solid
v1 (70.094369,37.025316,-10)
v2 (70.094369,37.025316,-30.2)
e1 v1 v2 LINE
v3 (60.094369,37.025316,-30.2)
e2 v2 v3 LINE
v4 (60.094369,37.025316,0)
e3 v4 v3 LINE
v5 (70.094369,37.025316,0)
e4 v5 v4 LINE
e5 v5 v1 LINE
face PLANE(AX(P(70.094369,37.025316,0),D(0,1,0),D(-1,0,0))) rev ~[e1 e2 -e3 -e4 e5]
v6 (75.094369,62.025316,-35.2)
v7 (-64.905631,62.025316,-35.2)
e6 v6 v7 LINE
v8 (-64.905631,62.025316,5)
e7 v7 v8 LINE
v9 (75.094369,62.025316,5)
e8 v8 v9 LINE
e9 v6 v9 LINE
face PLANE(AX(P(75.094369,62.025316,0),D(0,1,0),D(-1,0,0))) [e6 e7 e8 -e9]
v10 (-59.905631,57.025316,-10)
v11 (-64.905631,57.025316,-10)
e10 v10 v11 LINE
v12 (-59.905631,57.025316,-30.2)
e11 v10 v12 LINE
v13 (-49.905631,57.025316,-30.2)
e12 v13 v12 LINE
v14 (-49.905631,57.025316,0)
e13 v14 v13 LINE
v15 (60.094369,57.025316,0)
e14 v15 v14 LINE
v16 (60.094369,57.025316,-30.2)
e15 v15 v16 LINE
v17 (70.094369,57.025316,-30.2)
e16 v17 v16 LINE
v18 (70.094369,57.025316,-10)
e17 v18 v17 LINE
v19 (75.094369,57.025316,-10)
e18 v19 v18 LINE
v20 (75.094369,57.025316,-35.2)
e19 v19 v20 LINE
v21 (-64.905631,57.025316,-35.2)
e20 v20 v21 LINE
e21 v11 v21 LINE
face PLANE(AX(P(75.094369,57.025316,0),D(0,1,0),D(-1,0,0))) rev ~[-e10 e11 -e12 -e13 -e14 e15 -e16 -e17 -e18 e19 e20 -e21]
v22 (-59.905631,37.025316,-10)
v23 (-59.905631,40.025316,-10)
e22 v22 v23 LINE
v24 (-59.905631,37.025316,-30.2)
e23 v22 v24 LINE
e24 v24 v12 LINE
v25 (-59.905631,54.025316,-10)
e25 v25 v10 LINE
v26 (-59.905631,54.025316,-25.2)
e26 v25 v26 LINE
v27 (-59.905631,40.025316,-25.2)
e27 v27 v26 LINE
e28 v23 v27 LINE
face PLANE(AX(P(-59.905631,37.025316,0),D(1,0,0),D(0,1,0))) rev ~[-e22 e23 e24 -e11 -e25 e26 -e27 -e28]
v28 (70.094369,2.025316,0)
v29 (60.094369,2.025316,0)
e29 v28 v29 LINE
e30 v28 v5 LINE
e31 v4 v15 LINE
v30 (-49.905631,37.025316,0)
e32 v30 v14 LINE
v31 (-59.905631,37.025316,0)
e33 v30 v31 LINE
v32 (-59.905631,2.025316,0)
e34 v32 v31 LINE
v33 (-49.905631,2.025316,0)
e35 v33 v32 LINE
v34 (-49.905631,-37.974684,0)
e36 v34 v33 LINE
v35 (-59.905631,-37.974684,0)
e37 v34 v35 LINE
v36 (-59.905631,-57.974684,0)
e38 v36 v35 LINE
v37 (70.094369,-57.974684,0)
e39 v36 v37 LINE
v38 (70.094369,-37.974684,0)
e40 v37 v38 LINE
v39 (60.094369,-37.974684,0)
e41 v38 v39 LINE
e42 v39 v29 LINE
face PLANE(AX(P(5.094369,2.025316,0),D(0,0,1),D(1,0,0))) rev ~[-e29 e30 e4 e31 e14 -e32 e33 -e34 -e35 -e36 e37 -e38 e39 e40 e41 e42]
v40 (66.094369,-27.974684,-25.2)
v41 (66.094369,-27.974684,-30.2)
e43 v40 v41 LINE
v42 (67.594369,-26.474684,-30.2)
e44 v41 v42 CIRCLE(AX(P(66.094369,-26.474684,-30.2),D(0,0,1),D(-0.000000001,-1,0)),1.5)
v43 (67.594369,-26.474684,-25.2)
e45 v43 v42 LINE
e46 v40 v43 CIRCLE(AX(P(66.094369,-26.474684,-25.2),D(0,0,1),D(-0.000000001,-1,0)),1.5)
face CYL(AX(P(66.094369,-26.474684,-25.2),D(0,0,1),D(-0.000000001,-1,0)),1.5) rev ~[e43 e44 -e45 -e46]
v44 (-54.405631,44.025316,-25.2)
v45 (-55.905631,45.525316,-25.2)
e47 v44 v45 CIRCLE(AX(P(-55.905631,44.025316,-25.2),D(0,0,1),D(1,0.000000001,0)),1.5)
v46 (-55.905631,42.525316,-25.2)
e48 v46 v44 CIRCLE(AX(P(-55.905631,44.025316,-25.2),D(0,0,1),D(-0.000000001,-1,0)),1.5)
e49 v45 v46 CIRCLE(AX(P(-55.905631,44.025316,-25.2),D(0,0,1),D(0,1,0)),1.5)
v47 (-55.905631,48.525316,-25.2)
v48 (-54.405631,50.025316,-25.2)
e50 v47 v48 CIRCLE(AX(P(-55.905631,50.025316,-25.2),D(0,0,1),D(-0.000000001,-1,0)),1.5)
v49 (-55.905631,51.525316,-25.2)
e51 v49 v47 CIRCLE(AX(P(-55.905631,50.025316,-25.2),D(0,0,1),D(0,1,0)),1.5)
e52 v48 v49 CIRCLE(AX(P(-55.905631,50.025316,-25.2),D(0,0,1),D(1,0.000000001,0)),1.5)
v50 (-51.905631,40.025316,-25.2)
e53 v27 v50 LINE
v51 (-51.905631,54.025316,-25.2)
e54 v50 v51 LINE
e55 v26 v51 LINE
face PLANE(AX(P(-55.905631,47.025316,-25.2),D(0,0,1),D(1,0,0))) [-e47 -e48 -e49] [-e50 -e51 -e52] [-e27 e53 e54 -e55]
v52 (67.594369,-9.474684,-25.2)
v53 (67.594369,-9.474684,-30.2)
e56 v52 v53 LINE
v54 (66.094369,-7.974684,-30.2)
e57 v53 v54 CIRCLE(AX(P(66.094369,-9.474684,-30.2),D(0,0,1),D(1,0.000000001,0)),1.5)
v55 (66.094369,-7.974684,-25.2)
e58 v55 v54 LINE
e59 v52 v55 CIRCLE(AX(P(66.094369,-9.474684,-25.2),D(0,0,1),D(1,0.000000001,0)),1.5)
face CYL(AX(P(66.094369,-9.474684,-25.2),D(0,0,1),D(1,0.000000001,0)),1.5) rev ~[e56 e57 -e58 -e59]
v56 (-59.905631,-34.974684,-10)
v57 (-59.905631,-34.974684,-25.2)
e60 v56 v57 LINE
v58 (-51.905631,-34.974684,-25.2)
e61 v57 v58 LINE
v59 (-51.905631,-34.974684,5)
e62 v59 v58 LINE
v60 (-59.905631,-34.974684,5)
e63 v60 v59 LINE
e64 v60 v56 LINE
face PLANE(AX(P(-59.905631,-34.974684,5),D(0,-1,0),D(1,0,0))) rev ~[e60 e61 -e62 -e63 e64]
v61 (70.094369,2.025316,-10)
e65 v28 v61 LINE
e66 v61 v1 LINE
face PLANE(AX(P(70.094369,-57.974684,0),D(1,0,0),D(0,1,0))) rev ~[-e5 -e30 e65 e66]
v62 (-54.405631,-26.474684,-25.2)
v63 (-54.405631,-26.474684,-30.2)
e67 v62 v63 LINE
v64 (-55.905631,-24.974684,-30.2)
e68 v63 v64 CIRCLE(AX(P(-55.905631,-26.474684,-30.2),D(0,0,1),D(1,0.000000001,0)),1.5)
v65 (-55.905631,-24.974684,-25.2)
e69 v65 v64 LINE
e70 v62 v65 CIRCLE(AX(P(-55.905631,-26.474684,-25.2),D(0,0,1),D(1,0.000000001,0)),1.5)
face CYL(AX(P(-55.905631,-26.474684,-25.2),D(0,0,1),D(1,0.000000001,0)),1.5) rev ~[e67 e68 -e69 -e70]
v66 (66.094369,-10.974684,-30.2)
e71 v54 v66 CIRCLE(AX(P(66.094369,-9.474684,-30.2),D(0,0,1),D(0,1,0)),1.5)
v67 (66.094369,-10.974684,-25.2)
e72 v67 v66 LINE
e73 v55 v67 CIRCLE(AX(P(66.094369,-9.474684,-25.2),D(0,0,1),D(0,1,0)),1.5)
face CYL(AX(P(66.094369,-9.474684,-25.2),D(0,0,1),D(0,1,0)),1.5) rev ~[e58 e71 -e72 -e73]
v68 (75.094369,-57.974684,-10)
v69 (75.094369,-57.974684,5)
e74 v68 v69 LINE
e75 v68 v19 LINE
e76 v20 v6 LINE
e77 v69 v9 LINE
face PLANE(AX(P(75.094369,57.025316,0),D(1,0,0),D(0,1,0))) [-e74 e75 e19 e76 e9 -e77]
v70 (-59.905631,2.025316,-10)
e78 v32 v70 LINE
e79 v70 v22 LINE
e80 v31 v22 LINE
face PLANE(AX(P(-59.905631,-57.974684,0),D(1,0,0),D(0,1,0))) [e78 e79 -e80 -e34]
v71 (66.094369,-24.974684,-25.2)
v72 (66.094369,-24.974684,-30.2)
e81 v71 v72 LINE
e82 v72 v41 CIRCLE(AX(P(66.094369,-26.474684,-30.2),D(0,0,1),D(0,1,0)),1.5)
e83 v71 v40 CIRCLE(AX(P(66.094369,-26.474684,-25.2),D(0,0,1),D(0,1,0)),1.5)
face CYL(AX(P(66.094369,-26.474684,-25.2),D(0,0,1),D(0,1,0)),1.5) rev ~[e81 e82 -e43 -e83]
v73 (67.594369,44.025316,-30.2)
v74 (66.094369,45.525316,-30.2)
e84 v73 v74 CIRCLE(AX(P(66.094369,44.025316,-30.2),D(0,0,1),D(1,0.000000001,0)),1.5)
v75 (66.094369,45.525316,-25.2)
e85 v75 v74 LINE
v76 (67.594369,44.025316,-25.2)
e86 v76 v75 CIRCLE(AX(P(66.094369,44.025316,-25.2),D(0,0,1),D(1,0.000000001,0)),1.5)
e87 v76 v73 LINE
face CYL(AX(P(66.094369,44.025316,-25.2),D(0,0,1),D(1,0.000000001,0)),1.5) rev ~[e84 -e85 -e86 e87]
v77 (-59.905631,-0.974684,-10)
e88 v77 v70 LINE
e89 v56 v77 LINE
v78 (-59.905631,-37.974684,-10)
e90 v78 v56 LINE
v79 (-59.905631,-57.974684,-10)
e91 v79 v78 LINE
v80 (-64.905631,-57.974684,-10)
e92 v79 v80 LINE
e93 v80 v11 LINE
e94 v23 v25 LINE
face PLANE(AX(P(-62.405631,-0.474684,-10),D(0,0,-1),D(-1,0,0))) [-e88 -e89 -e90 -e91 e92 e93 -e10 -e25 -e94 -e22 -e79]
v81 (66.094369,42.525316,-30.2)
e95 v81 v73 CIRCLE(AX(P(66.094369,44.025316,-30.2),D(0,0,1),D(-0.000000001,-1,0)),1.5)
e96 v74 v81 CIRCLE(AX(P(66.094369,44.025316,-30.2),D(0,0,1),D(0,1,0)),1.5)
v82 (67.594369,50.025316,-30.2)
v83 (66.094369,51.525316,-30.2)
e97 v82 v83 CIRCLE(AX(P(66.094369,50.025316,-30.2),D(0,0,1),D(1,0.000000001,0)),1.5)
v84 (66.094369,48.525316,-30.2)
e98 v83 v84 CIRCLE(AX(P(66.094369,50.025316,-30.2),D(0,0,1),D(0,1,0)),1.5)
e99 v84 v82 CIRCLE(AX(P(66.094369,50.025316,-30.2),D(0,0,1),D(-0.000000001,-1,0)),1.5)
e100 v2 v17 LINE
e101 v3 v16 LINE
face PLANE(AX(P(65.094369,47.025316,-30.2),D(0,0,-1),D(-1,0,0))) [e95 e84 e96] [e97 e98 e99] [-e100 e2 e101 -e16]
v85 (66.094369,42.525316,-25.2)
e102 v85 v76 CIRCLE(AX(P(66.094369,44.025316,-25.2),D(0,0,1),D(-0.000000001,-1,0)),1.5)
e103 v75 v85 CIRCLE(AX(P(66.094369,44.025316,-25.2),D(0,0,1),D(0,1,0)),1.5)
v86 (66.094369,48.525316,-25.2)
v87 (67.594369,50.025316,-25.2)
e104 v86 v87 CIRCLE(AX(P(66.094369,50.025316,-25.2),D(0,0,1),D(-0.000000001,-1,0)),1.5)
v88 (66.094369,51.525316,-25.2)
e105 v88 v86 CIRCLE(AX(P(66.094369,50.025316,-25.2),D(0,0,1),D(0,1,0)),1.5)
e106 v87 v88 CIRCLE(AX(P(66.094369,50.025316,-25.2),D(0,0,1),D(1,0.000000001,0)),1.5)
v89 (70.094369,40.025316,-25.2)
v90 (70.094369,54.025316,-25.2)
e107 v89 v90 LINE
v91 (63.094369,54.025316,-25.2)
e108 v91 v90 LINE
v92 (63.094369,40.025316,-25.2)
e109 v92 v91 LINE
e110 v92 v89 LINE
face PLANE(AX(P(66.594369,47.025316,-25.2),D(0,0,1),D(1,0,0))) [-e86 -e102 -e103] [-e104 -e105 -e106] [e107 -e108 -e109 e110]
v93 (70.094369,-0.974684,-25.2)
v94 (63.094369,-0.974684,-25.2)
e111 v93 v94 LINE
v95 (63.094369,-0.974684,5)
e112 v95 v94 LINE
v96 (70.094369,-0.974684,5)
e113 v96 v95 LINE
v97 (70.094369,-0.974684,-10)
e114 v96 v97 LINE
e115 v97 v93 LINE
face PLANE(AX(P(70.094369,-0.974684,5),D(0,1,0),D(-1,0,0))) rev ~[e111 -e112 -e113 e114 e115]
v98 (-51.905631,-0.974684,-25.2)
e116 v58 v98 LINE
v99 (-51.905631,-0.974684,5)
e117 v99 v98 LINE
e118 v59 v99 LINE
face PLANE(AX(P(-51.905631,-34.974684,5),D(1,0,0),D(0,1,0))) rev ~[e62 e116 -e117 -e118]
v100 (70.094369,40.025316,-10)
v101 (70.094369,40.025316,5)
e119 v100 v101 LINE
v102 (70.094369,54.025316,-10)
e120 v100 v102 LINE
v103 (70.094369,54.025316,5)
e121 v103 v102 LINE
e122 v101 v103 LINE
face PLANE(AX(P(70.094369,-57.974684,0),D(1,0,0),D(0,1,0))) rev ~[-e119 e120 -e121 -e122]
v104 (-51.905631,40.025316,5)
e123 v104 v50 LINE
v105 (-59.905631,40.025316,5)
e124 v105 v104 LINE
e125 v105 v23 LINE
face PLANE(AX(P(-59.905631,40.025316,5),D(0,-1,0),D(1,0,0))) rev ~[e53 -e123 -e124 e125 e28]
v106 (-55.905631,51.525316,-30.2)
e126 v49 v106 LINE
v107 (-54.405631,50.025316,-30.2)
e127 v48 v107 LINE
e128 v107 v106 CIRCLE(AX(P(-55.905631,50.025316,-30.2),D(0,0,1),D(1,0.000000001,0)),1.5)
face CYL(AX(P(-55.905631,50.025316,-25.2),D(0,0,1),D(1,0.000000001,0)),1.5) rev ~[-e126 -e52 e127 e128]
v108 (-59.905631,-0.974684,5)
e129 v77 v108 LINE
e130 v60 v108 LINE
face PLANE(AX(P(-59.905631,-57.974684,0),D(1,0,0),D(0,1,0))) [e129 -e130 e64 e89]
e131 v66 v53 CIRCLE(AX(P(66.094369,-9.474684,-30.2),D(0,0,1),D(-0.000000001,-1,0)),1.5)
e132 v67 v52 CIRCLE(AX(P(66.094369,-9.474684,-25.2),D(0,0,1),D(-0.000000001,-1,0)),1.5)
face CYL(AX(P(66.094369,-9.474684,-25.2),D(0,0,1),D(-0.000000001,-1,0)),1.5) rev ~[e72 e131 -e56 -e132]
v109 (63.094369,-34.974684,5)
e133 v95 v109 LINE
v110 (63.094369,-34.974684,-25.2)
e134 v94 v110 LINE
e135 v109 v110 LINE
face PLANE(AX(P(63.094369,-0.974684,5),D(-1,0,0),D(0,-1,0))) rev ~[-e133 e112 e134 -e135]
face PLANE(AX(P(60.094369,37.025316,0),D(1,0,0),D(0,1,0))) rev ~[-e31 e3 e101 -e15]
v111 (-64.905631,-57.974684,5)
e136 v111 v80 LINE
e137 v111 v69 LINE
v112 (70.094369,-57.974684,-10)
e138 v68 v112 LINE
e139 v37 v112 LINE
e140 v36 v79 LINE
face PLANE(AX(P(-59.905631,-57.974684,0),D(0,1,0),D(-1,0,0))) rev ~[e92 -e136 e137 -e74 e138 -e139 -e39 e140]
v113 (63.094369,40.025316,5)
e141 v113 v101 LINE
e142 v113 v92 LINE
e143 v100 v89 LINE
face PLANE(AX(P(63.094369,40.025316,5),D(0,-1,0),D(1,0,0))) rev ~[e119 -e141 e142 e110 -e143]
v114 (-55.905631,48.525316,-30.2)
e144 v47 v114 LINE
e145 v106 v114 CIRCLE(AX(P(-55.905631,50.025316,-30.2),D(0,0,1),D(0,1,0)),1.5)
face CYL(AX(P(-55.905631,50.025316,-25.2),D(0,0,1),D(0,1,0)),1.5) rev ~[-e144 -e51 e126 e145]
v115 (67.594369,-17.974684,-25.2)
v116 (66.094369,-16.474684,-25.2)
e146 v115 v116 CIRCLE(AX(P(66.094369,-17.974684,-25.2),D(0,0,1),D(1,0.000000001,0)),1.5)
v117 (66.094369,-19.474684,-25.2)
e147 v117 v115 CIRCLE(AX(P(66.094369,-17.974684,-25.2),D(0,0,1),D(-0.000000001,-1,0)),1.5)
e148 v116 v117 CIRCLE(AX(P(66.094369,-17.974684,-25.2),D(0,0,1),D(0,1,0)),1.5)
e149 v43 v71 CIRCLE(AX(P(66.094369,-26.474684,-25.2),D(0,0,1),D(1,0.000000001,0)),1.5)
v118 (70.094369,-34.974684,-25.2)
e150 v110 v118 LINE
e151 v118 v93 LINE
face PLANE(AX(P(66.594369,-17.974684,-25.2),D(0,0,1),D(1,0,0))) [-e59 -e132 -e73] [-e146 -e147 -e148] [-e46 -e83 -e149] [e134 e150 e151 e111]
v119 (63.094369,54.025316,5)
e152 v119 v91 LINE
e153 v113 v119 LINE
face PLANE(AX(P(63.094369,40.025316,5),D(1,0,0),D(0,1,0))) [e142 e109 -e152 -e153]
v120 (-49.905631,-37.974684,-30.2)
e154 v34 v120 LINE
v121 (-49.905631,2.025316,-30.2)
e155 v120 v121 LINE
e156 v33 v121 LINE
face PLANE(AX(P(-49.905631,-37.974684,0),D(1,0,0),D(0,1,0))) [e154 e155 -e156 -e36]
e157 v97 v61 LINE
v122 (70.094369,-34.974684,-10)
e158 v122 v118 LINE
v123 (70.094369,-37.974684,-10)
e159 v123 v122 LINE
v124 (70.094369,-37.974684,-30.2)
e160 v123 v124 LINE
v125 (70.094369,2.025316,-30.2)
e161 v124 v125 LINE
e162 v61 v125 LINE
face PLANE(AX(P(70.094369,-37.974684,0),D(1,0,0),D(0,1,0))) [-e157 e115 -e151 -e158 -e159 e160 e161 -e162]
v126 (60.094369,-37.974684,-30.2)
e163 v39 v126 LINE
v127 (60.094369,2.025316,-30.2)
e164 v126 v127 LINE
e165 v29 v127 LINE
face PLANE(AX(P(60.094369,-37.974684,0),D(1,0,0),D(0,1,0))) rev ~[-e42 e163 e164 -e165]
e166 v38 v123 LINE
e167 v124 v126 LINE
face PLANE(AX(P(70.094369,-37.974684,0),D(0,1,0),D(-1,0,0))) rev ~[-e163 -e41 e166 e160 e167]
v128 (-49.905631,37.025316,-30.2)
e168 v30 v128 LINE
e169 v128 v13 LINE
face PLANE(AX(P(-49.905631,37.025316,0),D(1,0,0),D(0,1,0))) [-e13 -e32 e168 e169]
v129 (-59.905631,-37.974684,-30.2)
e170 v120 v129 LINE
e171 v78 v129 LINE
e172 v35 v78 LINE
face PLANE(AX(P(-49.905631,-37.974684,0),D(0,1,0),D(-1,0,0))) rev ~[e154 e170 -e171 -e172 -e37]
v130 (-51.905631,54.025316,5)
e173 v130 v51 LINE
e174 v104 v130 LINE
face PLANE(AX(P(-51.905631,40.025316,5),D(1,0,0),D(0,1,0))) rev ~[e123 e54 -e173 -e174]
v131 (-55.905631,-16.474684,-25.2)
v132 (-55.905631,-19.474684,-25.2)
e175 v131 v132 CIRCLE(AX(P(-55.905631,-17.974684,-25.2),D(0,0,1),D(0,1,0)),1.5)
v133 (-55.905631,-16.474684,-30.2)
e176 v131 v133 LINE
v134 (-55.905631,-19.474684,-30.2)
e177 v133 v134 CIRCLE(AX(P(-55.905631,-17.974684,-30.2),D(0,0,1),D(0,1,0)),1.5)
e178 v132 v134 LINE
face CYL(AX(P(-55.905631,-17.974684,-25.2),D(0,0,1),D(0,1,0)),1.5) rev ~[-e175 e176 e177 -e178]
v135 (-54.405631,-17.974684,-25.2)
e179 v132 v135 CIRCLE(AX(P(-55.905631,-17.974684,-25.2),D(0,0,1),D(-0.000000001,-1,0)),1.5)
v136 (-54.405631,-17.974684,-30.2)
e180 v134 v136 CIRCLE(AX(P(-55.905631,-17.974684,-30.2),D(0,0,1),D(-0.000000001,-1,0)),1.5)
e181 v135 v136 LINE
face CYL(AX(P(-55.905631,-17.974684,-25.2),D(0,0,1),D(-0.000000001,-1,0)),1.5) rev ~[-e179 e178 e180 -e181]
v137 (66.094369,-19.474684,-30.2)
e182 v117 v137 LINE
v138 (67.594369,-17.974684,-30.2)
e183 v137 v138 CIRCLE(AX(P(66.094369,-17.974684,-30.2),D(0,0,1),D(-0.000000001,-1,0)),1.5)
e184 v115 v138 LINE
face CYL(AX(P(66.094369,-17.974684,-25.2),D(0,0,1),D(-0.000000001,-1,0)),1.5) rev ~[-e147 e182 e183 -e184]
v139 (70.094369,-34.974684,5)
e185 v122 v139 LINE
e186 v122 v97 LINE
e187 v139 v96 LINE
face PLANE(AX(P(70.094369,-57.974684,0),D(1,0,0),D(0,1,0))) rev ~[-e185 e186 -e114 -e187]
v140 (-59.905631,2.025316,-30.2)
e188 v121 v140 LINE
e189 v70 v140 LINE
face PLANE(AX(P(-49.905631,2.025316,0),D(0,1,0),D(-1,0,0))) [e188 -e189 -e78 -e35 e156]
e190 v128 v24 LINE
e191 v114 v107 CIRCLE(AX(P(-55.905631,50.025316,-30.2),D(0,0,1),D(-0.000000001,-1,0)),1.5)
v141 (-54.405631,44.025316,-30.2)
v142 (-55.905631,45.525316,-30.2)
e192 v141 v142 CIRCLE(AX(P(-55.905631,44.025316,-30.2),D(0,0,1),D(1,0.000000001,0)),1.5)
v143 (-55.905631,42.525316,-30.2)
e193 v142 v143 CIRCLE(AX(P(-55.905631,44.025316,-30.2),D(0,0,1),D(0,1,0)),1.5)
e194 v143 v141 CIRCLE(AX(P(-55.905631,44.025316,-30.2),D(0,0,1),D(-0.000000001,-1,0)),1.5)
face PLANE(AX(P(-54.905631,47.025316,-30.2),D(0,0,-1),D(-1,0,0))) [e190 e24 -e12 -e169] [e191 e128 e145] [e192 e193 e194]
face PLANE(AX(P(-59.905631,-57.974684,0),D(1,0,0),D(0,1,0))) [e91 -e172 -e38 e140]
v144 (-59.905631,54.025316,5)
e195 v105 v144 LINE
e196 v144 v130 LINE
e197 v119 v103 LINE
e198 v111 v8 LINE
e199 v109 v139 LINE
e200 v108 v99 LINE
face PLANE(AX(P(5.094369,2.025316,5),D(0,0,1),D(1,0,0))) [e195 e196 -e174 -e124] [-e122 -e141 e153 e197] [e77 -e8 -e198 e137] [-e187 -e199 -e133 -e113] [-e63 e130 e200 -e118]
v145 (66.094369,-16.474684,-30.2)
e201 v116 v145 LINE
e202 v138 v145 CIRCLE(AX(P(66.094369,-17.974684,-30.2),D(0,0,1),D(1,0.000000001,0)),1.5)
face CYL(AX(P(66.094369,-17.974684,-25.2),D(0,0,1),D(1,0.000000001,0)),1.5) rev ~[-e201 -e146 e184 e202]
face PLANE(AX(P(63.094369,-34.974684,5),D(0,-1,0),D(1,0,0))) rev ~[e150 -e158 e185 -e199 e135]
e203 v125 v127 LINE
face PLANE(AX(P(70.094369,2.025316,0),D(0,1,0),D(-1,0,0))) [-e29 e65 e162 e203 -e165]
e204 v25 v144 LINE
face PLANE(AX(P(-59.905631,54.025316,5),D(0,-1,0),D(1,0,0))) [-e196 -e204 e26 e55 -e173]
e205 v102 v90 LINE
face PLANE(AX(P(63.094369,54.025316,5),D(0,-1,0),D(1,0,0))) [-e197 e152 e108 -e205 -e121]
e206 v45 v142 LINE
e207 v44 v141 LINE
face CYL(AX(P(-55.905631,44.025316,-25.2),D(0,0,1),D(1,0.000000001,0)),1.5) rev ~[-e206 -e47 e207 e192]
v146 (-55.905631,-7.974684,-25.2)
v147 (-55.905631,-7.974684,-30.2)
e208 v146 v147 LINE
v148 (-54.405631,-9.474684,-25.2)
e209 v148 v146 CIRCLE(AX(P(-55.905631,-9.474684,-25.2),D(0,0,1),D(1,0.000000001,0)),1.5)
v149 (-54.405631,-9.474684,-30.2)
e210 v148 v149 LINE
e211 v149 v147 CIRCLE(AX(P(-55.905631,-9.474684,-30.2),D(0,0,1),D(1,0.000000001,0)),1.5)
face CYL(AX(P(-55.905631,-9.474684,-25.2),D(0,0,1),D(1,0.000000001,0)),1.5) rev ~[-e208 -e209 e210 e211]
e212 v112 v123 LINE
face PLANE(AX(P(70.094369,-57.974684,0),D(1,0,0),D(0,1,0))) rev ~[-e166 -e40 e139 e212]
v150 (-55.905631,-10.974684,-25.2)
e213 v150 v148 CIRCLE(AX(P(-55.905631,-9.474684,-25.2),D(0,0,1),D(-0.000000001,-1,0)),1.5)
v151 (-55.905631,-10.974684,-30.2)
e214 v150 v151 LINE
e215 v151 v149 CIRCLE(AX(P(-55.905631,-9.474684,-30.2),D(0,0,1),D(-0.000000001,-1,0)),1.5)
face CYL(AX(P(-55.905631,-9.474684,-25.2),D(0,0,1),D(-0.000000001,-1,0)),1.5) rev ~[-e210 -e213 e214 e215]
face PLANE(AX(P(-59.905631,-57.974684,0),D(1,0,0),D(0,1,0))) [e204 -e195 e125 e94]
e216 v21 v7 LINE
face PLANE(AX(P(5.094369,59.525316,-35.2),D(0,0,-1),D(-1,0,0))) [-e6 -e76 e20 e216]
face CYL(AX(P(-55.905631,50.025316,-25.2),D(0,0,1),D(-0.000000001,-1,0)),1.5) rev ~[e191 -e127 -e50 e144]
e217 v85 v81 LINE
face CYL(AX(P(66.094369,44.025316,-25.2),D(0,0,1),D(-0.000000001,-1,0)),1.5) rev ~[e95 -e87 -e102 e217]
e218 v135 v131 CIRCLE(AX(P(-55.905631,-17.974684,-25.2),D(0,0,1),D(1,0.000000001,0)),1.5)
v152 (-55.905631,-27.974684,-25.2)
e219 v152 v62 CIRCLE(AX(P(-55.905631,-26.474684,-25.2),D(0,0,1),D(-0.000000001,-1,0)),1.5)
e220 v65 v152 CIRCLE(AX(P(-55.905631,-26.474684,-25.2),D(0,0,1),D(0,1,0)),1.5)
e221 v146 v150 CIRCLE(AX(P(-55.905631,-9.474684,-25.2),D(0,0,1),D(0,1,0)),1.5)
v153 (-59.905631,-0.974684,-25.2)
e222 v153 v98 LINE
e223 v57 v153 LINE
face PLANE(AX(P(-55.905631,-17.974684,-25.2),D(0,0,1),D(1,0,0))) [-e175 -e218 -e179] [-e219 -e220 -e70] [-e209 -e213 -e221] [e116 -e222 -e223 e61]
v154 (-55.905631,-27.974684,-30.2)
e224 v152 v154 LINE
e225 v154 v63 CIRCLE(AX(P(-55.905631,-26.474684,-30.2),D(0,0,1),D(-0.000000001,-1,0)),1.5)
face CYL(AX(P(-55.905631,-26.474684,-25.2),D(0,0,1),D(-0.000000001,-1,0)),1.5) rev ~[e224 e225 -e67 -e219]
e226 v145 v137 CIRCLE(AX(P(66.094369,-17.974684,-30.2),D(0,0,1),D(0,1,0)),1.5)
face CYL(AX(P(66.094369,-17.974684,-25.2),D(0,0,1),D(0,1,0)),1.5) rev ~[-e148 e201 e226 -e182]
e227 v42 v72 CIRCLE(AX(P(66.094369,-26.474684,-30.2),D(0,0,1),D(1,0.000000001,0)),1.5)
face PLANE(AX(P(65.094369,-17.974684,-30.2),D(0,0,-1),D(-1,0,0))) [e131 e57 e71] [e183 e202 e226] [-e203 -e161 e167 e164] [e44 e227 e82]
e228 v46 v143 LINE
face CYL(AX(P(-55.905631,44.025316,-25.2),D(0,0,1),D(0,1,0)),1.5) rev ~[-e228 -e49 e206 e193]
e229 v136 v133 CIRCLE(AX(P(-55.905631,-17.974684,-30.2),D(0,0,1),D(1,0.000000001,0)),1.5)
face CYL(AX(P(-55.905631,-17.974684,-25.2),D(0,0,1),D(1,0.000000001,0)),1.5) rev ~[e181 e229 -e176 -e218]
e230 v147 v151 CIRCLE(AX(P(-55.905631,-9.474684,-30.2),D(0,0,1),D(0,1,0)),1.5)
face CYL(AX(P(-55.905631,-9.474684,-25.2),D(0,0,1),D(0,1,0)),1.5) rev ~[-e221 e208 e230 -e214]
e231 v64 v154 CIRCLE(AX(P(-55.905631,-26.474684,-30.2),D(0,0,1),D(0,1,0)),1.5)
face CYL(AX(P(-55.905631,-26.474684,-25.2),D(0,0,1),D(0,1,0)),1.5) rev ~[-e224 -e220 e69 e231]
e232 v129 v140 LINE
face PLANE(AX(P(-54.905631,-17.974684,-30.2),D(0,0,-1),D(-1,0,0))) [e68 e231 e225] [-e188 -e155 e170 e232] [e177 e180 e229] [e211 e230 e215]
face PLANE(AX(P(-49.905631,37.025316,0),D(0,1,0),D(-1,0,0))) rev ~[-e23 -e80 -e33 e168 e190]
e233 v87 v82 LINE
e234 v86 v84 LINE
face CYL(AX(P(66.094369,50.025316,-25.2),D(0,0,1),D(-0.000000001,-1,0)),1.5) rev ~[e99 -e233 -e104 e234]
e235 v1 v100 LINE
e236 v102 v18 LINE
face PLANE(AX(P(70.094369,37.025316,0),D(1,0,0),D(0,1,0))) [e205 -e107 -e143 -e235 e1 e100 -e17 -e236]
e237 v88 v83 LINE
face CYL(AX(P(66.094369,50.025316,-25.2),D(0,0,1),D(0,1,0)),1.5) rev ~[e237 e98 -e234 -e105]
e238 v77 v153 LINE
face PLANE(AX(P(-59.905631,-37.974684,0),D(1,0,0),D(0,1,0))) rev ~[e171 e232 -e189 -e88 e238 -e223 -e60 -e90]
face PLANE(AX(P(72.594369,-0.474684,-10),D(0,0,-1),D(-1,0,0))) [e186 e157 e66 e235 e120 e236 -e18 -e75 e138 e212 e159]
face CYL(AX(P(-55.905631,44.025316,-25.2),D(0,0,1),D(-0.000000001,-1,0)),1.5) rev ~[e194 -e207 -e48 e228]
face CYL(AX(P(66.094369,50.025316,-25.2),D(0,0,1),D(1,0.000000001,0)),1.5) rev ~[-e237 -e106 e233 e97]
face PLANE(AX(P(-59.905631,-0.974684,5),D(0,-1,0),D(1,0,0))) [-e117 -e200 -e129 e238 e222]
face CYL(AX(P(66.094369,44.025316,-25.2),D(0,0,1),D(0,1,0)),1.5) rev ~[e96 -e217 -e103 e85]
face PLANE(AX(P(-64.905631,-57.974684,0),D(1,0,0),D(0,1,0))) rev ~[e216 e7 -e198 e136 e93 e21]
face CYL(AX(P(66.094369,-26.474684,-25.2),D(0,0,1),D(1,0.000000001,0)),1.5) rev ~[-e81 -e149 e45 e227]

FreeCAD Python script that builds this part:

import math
import FreeCAD as App
import Part
import Sketcher

V = App.Vector
Q = App.Units.Quantity

doc = App.newDocument("Part")
body = doc.addObject("PartDesign::Body", "Body")

# Sketch on XY plane
sketch1 = doc.addObject("Sketcher::SketchObject", "Sketch")
body.addObject(sketch1)
sketch1.AttachmentSupport = (doc.XY_Plane, [""])
sketch1.MapMode = "FlatFace"
sketch1.addGeometry(Part.LineSegment(V(-64.905631, 62.025316, 0), V(-64.905631, -57.974684, 0)), False)
sketch1.addGeometry(Part.LineSegment(V(-64.905631, -57.974684, 0), V(75.094369, -57.974684, 0)), False)
sketch1.addGeometry(Part.LineSegment(V(75.094369, -57.974684, 0), V(75.094369, 62.025316, 0)), False)
sketch1.addGeometry(Part.LineSegment(V(75.094369, 62.025316, 0), V(-64.905631, 62.025316, 0)), False)
sketch1.addConstraint(Sketcher.Constraint("Coincident", 0, 2, 1, 1))
sketch1.addConstraint(Sketcher.Constraint("Coincident", 1, 2, 2, 1))
sketch1.addConstraint(Sketcher.Constraint("Coincident", 2, 2, 3, 1))
sketch1.addConstraint(Sketcher.Constraint("Coincident", 3, 2, 0, 1))
sketch1.addConstraint(Sketcher.Constraint("Vertical", 0))
sketch1.addConstraint(Sketcher.Constraint("Horizontal", 1))
sketch1.addConstraint(Sketcher.Constraint("Vertical", 2))
sketch1.addConstraint(Sketcher.Constraint("Horizontal", 3))
sketch1.addConstraint(Sketcher.Constraint("DistanceX", 1, 1, 1, 2, Q("140 mm")))
sketch1.addConstraint(Sketcher.Constraint("DistanceY", 0, 2, 0, 1, Q("120 mm")))
sketch1.addConstraint(Sketcher.Constraint("DistanceX", 0, 2, -1, 1, Q("64.905631 mm")))
sketch1.addConstraint(Sketcher.Constraint("DistanceY", 0, 2, -1, 1, Q("57.974684 mm")))
pad1 = doc.addObject("PartDesign::Pad", "Pad")
body.addObject(pad1)
pad1.Profile = sketch1
pad1.Length = 5

# Sketch on XY plane
sketch2 = doc.addObject("Sketcher::SketchObject", "Sketch001")
body.addObject(sketch2)
sketch2.AttachmentSupport = (doc.XY_Plane, [""])
sketch2.MapMode = "FlatFace"
sketch2.addGeometry(Part.LineSegment(V(75.094369, 62.025316, 0), V(75.094369, 57.025316, 0)), False)
sketch2.addGeometry(Part.LineSegment(V(75.094369, 57.025316, 0), V(-64.905631, 57.025316, 0)), False)
sketch2.addGeometry(Part.LineSegment(V(-64.905631, 57.025316, 0), V(-64.905631, 62.025316, 0)), False)
sketch2.addGeometry(Part.LineSegment(V(-64.905631, 62.025316, 0), V(75.094369, 62.025316, 0)), False)
sketch2.addConstraint(Sketcher.Constraint("Coincident", 0, 2, 1, 1))
sketch2.addConstraint(Sketcher.Constraint("Coincident", 1, 2, 2, 1))
sketch2.addConstraint(Sketcher.Constraint("Coincident", 2, 2, 3, 1))
sketch2.addConstraint(Sketcher.Constraint("Coincident", 3, 2, 0, 1))
sketch2.addConstraint(Sketcher.Constraint("Vertical", 0))
sketch2.addConstraint(Sketcher.Constraint("Horizontal", 1))
sketch2.addConstraint(Sketcher.Constraint("Vertical", 2))
sketch2.addConstraint(Sketcher.Constraint("Horizontal", 3))
sketch2.addConstraint(Sketcher.Constraint("DistanceX", 1, 2, 1, 1, Q("140 mm")))
sketch2.addConstraint(Sketcher.Constraint("DistanceY", 0, 2, 0, 1, Q("5 mm")))
sketch2.addConstraint(Sketcher.Constraint("DistanceX", -1, 1, 0, 2, Q("75.094369 mm")))
sketch2.addConstraint(Sketcher.Constraint("DistanceY", -1, 1, 0, 2, Q("57.025316 mm")))
pad2 = doc.addObject("PartDesign::Pad", "Pad001")
body.addObject(pad2)
pad2.Profile = sketch2
pad2.Length = 35.2
pad2.Reversed = True

# Sketch on XY plane
sketch3 = doc.addObject("Sketcher::SketchObject", "Sketch002")
body.addObject(sketch3)
sketch3.AttachmentSupport = (doc.XY_Plane, [""])
sketch3.MapMode = "FlatFace"
sketch3.addGeometry(Part.LineSegment(V(70.094369, 2.025316, 0), V(70.094369, -37.974684, 0)), False)
sketch3.addGeometry(Part.LineSegment(V(70.094369, -37.974684, 0), V(60.094369, -37.974684, 0)), False)
sketch3.addGeometry(Part.LineSegment(V(60.094369, -37.974684, 0), V(60.094369, 2.025316, 0)), False)
sketch3.addGeometry(Part.LineSegment(V(60.094369, 2.025316, 0), V(70.094369, 2.025316, 0)), False)
sketch3.addGeometry(Part.LineSegment(V(70.094369, 57.025316, 0), V(70.094369, 37.025316, 0)), False)
sketch3.addGeometry(Part.LineSegment(V(70.094369, 37.025316, 0), V(60.094369, 37.025316, 0)), False)
sketch3.addGeometry(Part.LineSegment(V(60.094369, 37.025316, 0), V(60.094369, 57.025316, 0)), False)
sketch3.addGeometry(Part.LineSegment(V(60.094369, 57.025316, 0), V(70.094369, 57.025316, 0)), False)
sketch3.addGeometry(Part.LineSegment(V(-49.905631, 2.025316, 0), V(-49.905631, -37.974684, 0)), False)
sketch3.addGeometry(Part.LineSegment(V(-49.905631, -37.974684, 0), V(-59.905631, -37.974684, 0)), False)
sketch3.addGeometry(Part.LineSegment(V(-59.905631, -37.974684, 0), V(-59.905631, 2.025316, 0)), False)
sketch3.addGeometry(Part.LineSegment(V(-59.905631, 2.025316, 0), V(-49.905631, 2.025316, 0)), False)
sketch3.addGeometry(Part.LineSegment(V(-49.905631, 57.025316, 0), V(-49.905631, 37.025316, 0)), False)
sketch3.addGeometry(Part.LineSegment(V(-49.905631, 37.025316, 0), V(-59.905631, 37.025316, 0)), False)
sketch3.addGeometry(Part.LineSegment(V(-59.905631, 37.025316, 0), V(-59.905631, 57.025316, 0)), False)
sketch3.addGeometry(Part.LineSegment(V(-59.905631, 57.025316, 0), V(-49.905631, 57.025316, 0)), False)
sketch3.addConstraint(Sketcher.Constraint("Coincident", 0, 2, 1, 1))
sketch3.addConstraint(Sketcher.Constraint("Coincident", 1, 2, 2, 1))
sketch3.addConstraint(Sketcher.Constraint("Coincident", 2, 2, 3, 1))
sketch3.addConstraint(Sketcher.Constraint("Coincident", 3, 2, 0, 1))
sketch3.addConstraint(Sketcher.Constraint("Coincident", 4, 2, 5, 1))
sketch3.addConstraint(Sketcher.Constraint("Coincident", 5, 2, 6, 1))
sketch3.addConstraint(Sketcher.Constraint("Coincident", 6, 2, 7, 1))
sketch3.addConstraint(Sketcher.Constraint("Coincident", 7, 2, 4, 1))
sketch3.addConstraint(Sketcher.Constraint("Coincident", 8, 2, 9, 1))
sketch3.addConstraint(Sketcher.Constraint("Coincident", 9, 2, 10, 1))
sketch3.addConstraint(Sketcher.Constraint("Coincident", 10, 2, 11, 1))
sketch3.addConstraint(Sketcher.Constraint("Coincident", 11, 2, 8, 1))
sketch3.addConstraint(Sketcher.Constraint("Coincident", 12, 2, 13, 1))
sketch3.addConstraint(Sketcher.Constraint("Coincident", 13, 2, 14, 1))
sketch3.addConstraint(Sketcher.Constraint("Coincident", 14, 2, 15, 1))
sketch3.addConstraint(Sketcher.Constraint("Coincident", 15, 2, 12, 1))
sketch3.addConstraint(Sketcher.Constraint("Vertical", 0))
sketch3.addConstraint(Sketcher.Constraint("Horizontal", 1))
sketch3.addConstraint(Sketcher.Constraint("Vertical", 2))
sketch3.addConstraint(Sketcher.Constraint("Horizontal", 3))
sketch3.addConstraint(Sketcher.Constraint("Vertical", 4))
sketch3.addConstraint(Sketcher.Constraint("Horizontal", 5))
sketch3.addConstraint(Sketcher.Constraint("Vertical", 6))
sketch3.addConstraint(Sketcher.Constraint("Horizontal", 7))
sketch3.addConstraint(Sketcher.Constraint("Vertical", 8))
sketch3.addConstraint(Sketcher.Constraint("Horizontal", 9))
sketch3.addConstraint(Sketcher.Constraint("Vertical", 10))
sketch3.addConstraint(Sketcher.Constraint("Horizontal", 11))
sketch3.addConstraint(Sketcher.Constraint("Vertical", 12))
sketch3.addConstraint(Sketcher.Constraint("Horizontal", 13))
sketch3.addConstraint(Sketcher.Constraint("Vertical", 14))
sketch3.addConstraint(Sketcher.Constraint("Horizontal", 15))
sketch3.addConstraint(Sketcher.Constraint("Horizontal", 1, 2, 8, 2))
sketch3.addConstraint(Sketcher.Constraint("Horizontal", 3, 2, 10, 2))
sketch3.addConstraint(Sketcher.Constraint("Horizontal", 5, 2, 12, 2))
sketch3.addConstraint(Sketcher.Constraint("Horizontal", 7, 2, 14, 2))
sketch3.addConstraint(Sketcher.Constraint("Vertical", 3, 2, 4, 2))
sketch3.addConstraint(Sketcher.Constraint("Vertical", 2, 2, 5, 2))
sketch3.addConstraint(Sketcher.Constraint("Vertical", 11, 2, 12, 2))
sketch3.addConstraint(Sketcher.Constraint("Vertical", 10, 2, 13, 2))
sketch3.addConstraint(Sketcher.Constraint("Equal", 7, 9))
sketch3.addConstraint(Sketcher.Constraint("DistanceX", 1, 2, 1, 1, Q("10 mm")))
sketch3.addConstraint(Sketcher.Constraint("DistanceY", 0, 2, 0, 1, Q("40 mm")))
sketch3.addConstraint(Sketcher.Constraint("DistanceY", 4, 2, 4, 1, Q("20 mm")))
sketch3.addConstraint(Sketcher.Constraint("DistanceY", 3, 2, 4, 2, Q("35 mm")))
sketch3.addConstraint(Sketcher.Constraint("DistanceX", 8, 2, 1, 2, Q("110 mm")))
sketch3.addConstraint(Sketcher.Constraint("DistanceX", -1, 1, 0, 2, Q("70.094369 mm")))
sketch3.addConstraint(Sketcher.Constraint("DistanceY", 0, 2, -1, 1, Q("37.974684 mm")))
pad3 = doc.addObject("PartDesign::Pad", "Pad002")
body.addObject(pad3)
pad3.Profile = sketch3
pad3.Length = 30.2
pad3.Reversed = True

# Sketch on XY plane
sketch4 = doc.addObject("Sketcher::SketchObject", "Sketch003")
body.addObject(sketch4)
sketch4.AttachmentSupport = (doc.XY_Plane, [""])
sketch4.MapMode = "FlatFace"
sketch4.AttachmentOffset = App.Placement(V(0, 0, 5), App.Rotation())
sketch4.addGeometry(Part.LineSegment(V(-59.905631, 54.025316, 0), V(-59.905631, 40.025316, 0)), False)
sketch4.addGeometry(Part.LineSegment(V(-59.905631, 40.025316, 0), V(-51.905631, 40.025316, 0)), False)
sketch4.addGeometry(Part.LineSegment(V(-51.905631, 40.025316, 0), V(-51.905631, 54.025316, 0)), False)
sketch4.addGeometry(Part.LineSegment(V(-51.905631, 54.025316, 0), V(-59.905631, 54.025316, 0)), False)
sketch4.addGeometry(Part.LineSegment(V(-59.905631, -0.974684, 0), V(-59.905631, -34.974684, 0)), False)
sketch4.addGeometry(Part.LineSegment(V(-59.905631, -34.974684, 0), V(-51.905631, -34.974684, 0)), False)
sketch4.addGeometry(Part.LineSegment(V(-51.905631, -34.974684, 0), V(-51.905631, -0.974684, 0)), False)
sketch4.addGeometry(Part.LineSegment(V(-51.905631, -0.974684, 0), V(-59.905631, -0.974684, 0)), False)
sketch4.addGeometry(Part.LineSegment(V(63.094369, -0.974684, 0), V(63.094369, -34.974684, 0)), False)
sketch4.addGeometry(Part.LineSegment(V(63.094369, -34.974684, 0), V(70.094369, -34.974684, 0)), False)
sketch4.addGeometry(Part.LineSegment(V(70.094369, -34.974684, 0), V(70.094369, -0.974684, 0)), False)
sketch4.addGeometry(Part.LineSegment(V(70.094369, -0.974684, 0), V(63.094369, -0.974684, 0)), False)
sketch4.addGeometry(Part.LineSegment(V(63.094369, 54.025316, 0), V(63.094369, 40.025316, 0)), False)
sketch4.addGeometry(Part.LineSegment(V(63.094369, 40.025316, 0), V(70.094369, 40.025316, 0)), False)
sketch4.addGeometry(Part.LineSegment(V(70.094369, 40.025316, 0), V(70.094369, 54.025316, 0)), False)
sketch4.addGeometry(Part.LineSegment(V(70.094369, 54.025316, 0), V(63.094369, 54.025316, 0)), False)
sketch4.addConstraint(Sketcher.Constraint("Coincident", 0, 2, 1, 1))
sketch4.addConstraint(Sketcher.Constraint("Coincident", 1, 2, 2, 1))
sketch4.addConstraint(Sketcher.Constraint("Coincident", 2, 2, 3, 1))
sketch4.addConstraint(Sketcher.Constraint("Coincident", 3, 2, 0, 1))
sketch4.addConstraint(Sketcher.Constraint("Coincident", 4, 2, 5, 1))
sketch4.addConstraint(Sketcher.Constraint("Coincident", 5, 2, 6, 1))
sketch4.addConstraint(Sketcher.Constraint("Coincident", 6, 2, 7, 1))
sketch4.addConstraint(Sketcher.Constraint("Coincident", 7, 2, 4, 1))
sketch4.addConstraint(Sketcher.Constraint("Coincident", 8, 2, 9, 1))
sketch4.addConstraint(Sketcher.Constraint("Coincident", 9, 2, 10, 1))
sketch4.addConstraint(Sketcher.Constraint("Coincident", 10, 2, 11, 1))
sketch4.addConstraint(Sketcher.Constraint("Coincident", 11, 2, 8, 1))
sketch4.addConstraint(Sketcher.Constraint("Coincident", 12, 2, 13, 1))
sketch4.addConstraint(Sketcher.Constraint("Coincident", 13, 2, 14, 1))
sketch4.addConstraint(Sketcher.Constraint("Coincident", 14, 2, 15, 1))
sketch4.addConstraint(Sketcher.Constraint("Coincident", 15, 2, 12, 1))
sketch4.addConstraint(Sketcher.Constraint("Vertical", 0))
sketch4.addConstraint(Sketcher.Constraint("Horizontal", 1))
sketch4.addConstraint(Sketcher.Constraint("Vertical", 2))
sketch4.addConstraint(Sketcher.Constraint("Horizontal", 3))
sketch4.addConstraint(Sketcher.Constraint("Vertical", 4))
sketch4.addConstraint(Sketcher.Constraint("Horizontal", 5))
sketch4.addConstraint(Sketcher.Constraint("Vertical", 6))
sketch4.addConstraint(Sketcher.Constraint("Horizontal", 7))
sketch4.addConstraint(Sketcher.Constraint("Vertical", 8))
sketch4.addConstraint(Sketcher.Constraint("Horizontal", 9))
sketch4.addConstraint(Sketcher.Constraint("Vertical", 10))
sketch4.addConstraint(Sketcher.Constraint("Horizontal", 11))
sketch4.addConstraint(Sketcher.Constraint("Vertical", 12))
sketch4.addConstraint(Sketcher.Constraint("Horizontal", 13))
sketch4.addConstraint(Sketcher.Constraint("Vertical", 14))
sketch4.addConstraint(Sketcher.Constraint("Horizontal", 15))
sketch4.addConstraint(Sketcher.Constraint("Horizontal", 5, 2, 8, 2))
sketch4.addConstraint(Sketcher.Constraint("Horizontal", 7, 2, 10, 2))
sketch4.addConstraint(Sketcher.Constraint("Horizontal", 1, 2, 12, 2))
sketch4.addConstraint(Sketcher.Constraint("Horizontal", 3, 2, 14, 2))
sketch4.addConstraint(Sketcher.Constraint("Vertical", 3, 2, 4, 2))
sketch4.addConstraint(Sketcher.Constraint("Vertical", 2, 2, 5, 2))
sketch4.addConstraint(Sketcher.Constraint("Vertical", 11, 2, 12, 2))
sketch4.addConstraint(Sketcher.Constraint("Vertical", 10, 2, 13, 2))
sketch4.addConstraint(Sketcher.Constraint("DistanceX", 1, 1, 1, 2, Q("8 mm")))
sketch4.addConstraint(Sketcher.Constraint("DistanceX", 9, 1, 9, 2, Q("7 mm")))
sketch4.addConstraint(Sketcher.Constraint("DistanceY", 0, 2, 0, 1, Q("14 mm")))
sketch4.addConstraint(Sketcher.Constraint("DistanceY", 4, 2, 4, 1, Q("34 mm")))
sketch4.addConstraint(Sketcher.Constraint("DistanceY", 4, 2, 0, 2, Q("75 mm")))
sketch4.addConstraint(Sketcher.Constraint("DistanceX", 5, 2, 8, 2, Q("115 mm")))
sketch4.addConstraint(Sketcher.Constraint("DistanceX", 0, 2, -1, 1, Q("59.905631 mm")))
sketch4.addConstraint(Sketcher.Constraint("DistanceY", -1, 1, 0, 2, Q("40.025316 mm")))
pocket1 = doc.addObject("PartDesign::Pocket", "Pocket")
body.addObject(pocket1)
pocket1.Profile = sketch4
pocket1.Length = 30.2

# Sketch on XY plane
sketch5 = doc.addObject("Sketcher::SketchObject", "Sketch004")
body.addObject(sketch5)
sketch5.AttachmentSupport = (doc.XY_Plane, [""])
sketch5.MapMode = "FlatFace"
sketch5.AttachmentOffset = App.Placement(V(0, 0, -25.2), App.Rotation())
sketch5.addGeometry(Part.ArcOfCircle(Part.Circle(V(-55.905631, 44.025316, 0), V(0, 0, 1), 1.5), math.radians(0), math.radians(90)), False)
sketch5.addGeometry(Part.ArcOfCircle(Part.Circle(V(-55.905631, 44.025316, 0), V(0, 0, 1), 1.5), math.radians(90), math.radians(270)), False)
sketch5.addGeometry(Part.ArcOfCircle(Part.Circle(V(-55.905631, 44.025316, 0), V(0, 0, 1), 1.5), math.radians(-90), math.radians(0)), False)
sketch5.addGeometry(Part.ArcOfCircle(Part.Circle(V(-55.905631, 50.025316, 0), V(0, 0, 1), 1.5), math.radians(0), math.radians(90)), False)
sketch5.addGeometry(Part.ArcOfCircle(Part.Circle(V(-55.905631, 50.025316, 0), V(0, 0, 1), 1.5), math.radians(90), math.radians(270)), False)
sketch5.addGeometry(Part.ArcOfCircle(Part.Circle(V(-55.905631, 50.025316, 0), V(0, 0, 1), 1.5), math.radians(-90), math.radians(0)), False)
sketch5.addGeometry(Part.ArcOfCircle(Part.Circle(V(-55.905631, -9.474684, 0), V(0, 0, 1), 1.5), math.radians(0), math.radians(90)), False)
sketch5.addGeometry(Part.ArcOfCircle(Part.Circle(V(-55.905631, -9.474684, 0), V(0, 0, 1), 1.5), math.radians(90), math.radians(270)), False)
sketch5.addGeometry(Part.ArcOfCircle(Part.Circle(V(-55.905631, -9.474684, 0), V(0, 0, 1), 1.5), math.radians(-90), math.radians(0)), False)
sketch5.addGeometry(Part.ArcOfCircle(Part.Circle(V(-55.905631, -17.974684, 0), V(0, 0, 1), 1.5), math.radians(0), math.radians(90)), False)
sketch5.addGeometry(Part.ArcOfCircle(Part.Circle(V(-55.905631, -17.974684, 0), V(0, 0, 1), 1.5), math.radians(90), math.radians(270)), False)
sketch5.addGeometry(Part.ArcOfCircle(Part.Circle(V(-55.905631, -17.974684, 0), V(0, 0, 1), 1.5), math.radians(-90), math.radians(0)), False)
sketch5.addGeometry(Part.ArcOfCircle(Part.Circle(V(-55.905631, -26.474684, 0), V(0, 0, 1), 1.5), math.radians(0), math.radians(90)), False)
sketch5.addGeometry(Part.ArcOfCircle(Part.Circle(V(-55.905631, -26.474684, 0), V(0, 0, 1), 1.5), math.radians(90), math.radians(270)), False)
sketch5.addGeometry(Part.ArcOfCircle(Part.Circle(V(-55.905631, -26.474684, 0), V(0, 0, 1), 1.5), math.radians(-90), math.radians(0)), False)
sketch5.addGeometry(Part.ArcOfCircle(Part.Circle(V(66.094369, -26.474684, 0), V(0, 0, 1), 1.5), math.radians(0), math.radians(90)), False)
sketch5.addGeometry(Part.ArcOfCircle(Part.Circle(V(66.094369, -26.474684, 0), V(0, 0, 1), 1.5), math.radians(90), math.radians(270)), False)
sketch5.addGeometry(Part.ArcOfCircle(Part.Circle(V(66.094369, -26.474684, 0), V(0, 0, 1), 1.5), math.radians(-90), math.radians(0)), False)
sketch5.addGeometry(Part.ArcOfCircle(Part.Circle(V(66.094369, -17.974684, 0), V(0, 0, 1), 1.5), math.radians(0), math.radians(90)), False)
sketch5.addGeometry(Part.ArcOfCircle(Part.Circle(V(66.094369, -17.974684, 0), V(0, 0, 1), 1.5), math.radians(90), math.radians(270)), False)
sketch5.addGeometry(Part.ArcOfCircle(Part.Circle(V(66.094369, -17.974684, 0), V(0, 0, 1), 1.5), math.radians(-90), math.radians(0)), False)
sketch5.addGeometry(Part.ArcOfCircle(Part.Circle(V(66.094369, -9.474684, 0), V(0, 0, 1), 1.5), math.radians(0), math.radians(90)), False)
sketch5.addGeometry(Part.ArcOfCircle(Part.Circle(V(66.094369, -9.474684, 0), V(0, 0, 1), 1.5), math.radians(90), math.radians(270)), False)
sketch5.addGeometry(Part.ArcOfCircle(Part.Circle(V(66.094369, -9.474684, 0), V(0, 0, 1), 1.5), math.radians(-90), math.radians(0)), False)
sketch5.addGeometry(Part.ArcOfCircle(Part.Circle(V(66.094369, 44.025316, 0), V(0, 0, 1), 1.5), math.radians(0), math.radians(90)), False)
sketch5.addGeometry(Part.ArcOfCircle(Part.Circle(V(66.094369, 44.025316, 0), V(0, 0, 1), 1.5), math.radians(90), math.radians(270)), False)
sketch5.addGeometry(Part.ArcOfCircle(Part.Circle(V(66.094369, 44.025316, 0), V(0, 0, 1), 1.5), math.radians(-90), math.radians(0)), False)
sketch5.addGeometry(Part.ArcOfCircle(Part.Circle(V(66.094369, 50.025316, 0), V(0, 0, 1), 1.5), math.radians(0), math.radians(90)), False)
sketch5.addGeometry(Part.ArcOfCircle(Part.Circle(V(66.094369, 50.025316, 0), V(0, 0, 1), 1.5), math.radians(90), math.radians(270)), False)
sketch5.addGeometry(Part.ArcOfCircle(Part.Circle(V(66.094369, 50.025316, 0), V(0, 0, 1), 1.5), math.radians(-90), math.radians(0)), False)
sketch5.addConstraint(Sketcher.Constraint("Tangent", 0, 2, 1, 1))
sketch5.addConstraint(Sketcher.Constraint("Tangent", 1, 2, 2, 1))
sketch5.addConstraint(Sketcher.Constraint("Tangent", 2, 2, 0, 1))
sketch5.addConstraint(Sketcher.Constraint("Tangent", 3, 2, 4, 1))
sketch5.addConstraint(Sketcher.Constraint("Tangent", 4, 2, 5, 1))
sketch5.addConstraint(Sketcher.Constraint("Tangent", 5, 2, 3, 1))
sketch5.addConstraint(Sketcher.Constraint("Tangent", 6, 2, 7, 1))
sketch5.addConstraint(Sketcher.Constraint("Tangent", 7, 2, 8, 1))
sketch5.addConstraint(Sketcher.Constraint("Tangent", 8, 2, 6, 1))
sketch5.addConstraint(Sketcher.Constraint("Tangent", 9, 2, 10, 1))
sketch5.addConstraint(Sketcher.Constraint("Tangent", 10, 2, 11, 1))
sketch5.addConstraint(Sketcher.Constraint("Tangent", 11, 2, 9, 1))
sketch5.addConstraint(Sketcher.Constraint("Tangent", 12, 2, 13, 1))
sketch5.addConstraint(Sketcher.Constraint("Tangent", 13, 2, 14, 1))
sketch5.addConstraint(Sketcher.Constraint("Tangent", 14, 2, 12, 1))
sketch5.addConstraint(Sketcher.Constraint("Tangent", 15, 2, 16, 1))
sketch5.addConstraint(Sketcher.Constraint("Tangent", 16, 2, 17, 1))
sketch5.addConstraint(Sketcher.Constraint("Tangent", 17, 2, 15, 1))
sketch5.addConstraint(Sketcher.Constraint("Tangent", 18, 2, 19, 1))
sketch5.addConstraint(Sketcher.Constraint("Tangent", 19, 2, 20, 1))
sketch5.addConstraint(Sketcher.Constraint("Tangent", 20, 2, 18, 1))
sketch5.addConstraint(Sketcher.Constraint("Tangent", 21, 2, 22, 1))
sketch5.addConstraint(Sketcher.Constraint("Tangent", 22, 2, 23, 1))
sketch5.addConstraint(Sketcher.Constraint("Tangent", 23, 2, 21, 1))
sketch5.addConstraint(Sketcher.Constraint("Tangent", 24, 2, 25, 1))
sketch5.addConstraint(Sketcher.Constraint("Tangent", 25, 2, 26, 1))
sketch5.addConstraint(Sketcher.Constraint("Tangent", 26, 2, 24, 1))
sketch5.addConstraint(Sketcher.Constraint("Tangent", 27, 2, 28, 1))
sketch5.addConstraint(Sketcher.Constraint("Tangent", 28, 2, 29, 1))
sketch5.addConstraint(Sketcher.Constraint("Tangent", 29, 2, 27, 1))
sketch5.addConstraint(Sketcher.Constraint("Equal", 2, 3))
sketch5.addConstraint(Sketcher.Constraint("Equal", 5, 6))
sketch5.addConstraint(Sketcher.Constraint("Equal", 8, 9))
sketch5.addConstraint(Sketcher.Constraint("Equal", 11, 12))
sketch5.addConstraint(Sketcher.Constraint("Equal", 14, 15))
sketch5.addConstraint(Sketcher.Constraint("Equal", 17, 18))
sketch5.addConstraint(Sketcher.Constraint("Equal", 20, 21))
sketch5.addConstraint(Sketcher.Constraint("Equal", 23, 24))
sketch5.addConstraint(Sketcher.Constraint("Equal", 26, 27))
sketch5.addConstraint(Sketcher.Constraint("Horizontal", 14, 3, 15, 3))
sketch5.addConstraint(Sketcher.Constraint("Horizontal", 11, 3, 18, 3))
sketch5.addConstraint(Sketcher.Constraint("Horizontal", 8, 3, 21, 3))
sketch5.addConstraint(Sketcher.Constraint("Horizontal", 2, 3, 24, 3))
sketch5.addConstraint(Sketcher.Constraint("Horizontal", 5, 3, 27, 3))
sketch5.addConstraint(Sketcher.Constraint("Horizontal", 26, 3, 2, 2))
sketch5.addConstraint(Sketcher.Constraint("Horizontal", 29, 3, 5, 2))
sketch5.addConstraint(Sketcher.Constraint("Horizontal", 23, 3, 8, 2))
sketch5.addConstraint(Sketcher.Constraint("Horizontal", 20, 3, 11, 2))
sketch5.addConstraint(Sketcher.Constraint("Horizontal", 17, 3, 14, 2))
sketch5.addConstraint(Sketcher.Constraint("Horizontal", 14, 2, 17, 2))
sketch5.addConstraint(Sketcher.Constraint("Horizontal", 11, 2, 20, 2))
sketch5.addConstraint(Sketcher.Constraint("Horizontal", 8, 2, 23, 2))
sketch5.addConstraint(Sketcher.Constraint("Horizontal", 2, 2, 26, 2))
sketch5.addConstraint(Sketcher.Constraint("Horizontal", 5, 2, 29, 2))
sketch5.addConstraint(Sketcher.Constraint("Vertical", 2, 3, 3, 3))
sketch5.addConstraint(Sketcher.Constraint("Vertical", 5, 3, 6, 3))
sketch5.addConstraint(Sketcher.Constraint("Vertical", 8, 3, 9, 3))
sketch5.addConstraint(Sketcher.Constraint("Vertical", 11, 3, 12, 3))
sketch5.addConstraint(Sketcher.Constraint("Vertical", 17, 3, 18, 3))
sketch5.addConstraint(Sketcher.Constraint("Vertical", 20, 3, 21, 3))
sketch5.addConstraint(Sketcher.Constraint("Vertical", 23, 3, 24, 3))
sketch5.addConstraint(Sketcher.Constraint("Vertical", 26, 3, 27, 3))
sketch5.addConstraint(Sketcher.Constraint("Vertical", 14, 3, 0, 2))
sketch5.addConstraint(Sketcher.Constraint("Vertical", 0, 2, 1, 2))
sketch5.addConstraint(Sketcher.Constraint("Vertical", 1, 2, 3, 2))
sketch5.addConstraint(Sketcher.Constraint("Vertical", 3, 2, 4, 2))
sketch5.addConstraint(Sketcher.Constraint("Vertical", 4, 2, 6, 2))
sketch5.addConstraint(Sketcher.Constraint("Vertical", 6, 2, 7, 2))
sketch5.addConstraint(Sketcher.Constraint("Vertical", 7, 2, 9, 2))
sketch5.addConstraint(Sketcher.Constraint("Vertical", 9, 2, 10, 2))
sketch5.addConstraint(Sketcher.Constraint("Vertical", 10, 2, 12, 2))
sketch5.addConstraint(Sketcher.Constraint("Vertical", 12, 2, 13, 2))
sketch5.addConstraint(Sketcher.Constraint("Vertical", 29, 3, 15, 2))
sketch5.addConstraint(Sketcher.Constraint("Vertical", 15, 2, 16, 2))
sketch5.addConstraint(Sketcher.Constraint("Vertical", 16, 2, 18, 2))
sketch5.addConstraint(Sketcher.Constraint("Vertical", 18, 2, 19, 2))
sketch5.addConstraint(Sketcher.Constraint("Vertical", 19, 2, 21, 2))
sketch5.addConstraint(Sketcher.Constraint("Vertical", 21, 2, 22, 2))
sketch5.addConstraint(Sketcher.Constraint("Vertical", 22, 2, 24, 2))
sketch5.addConstraint(Sketcher.Constraint("Vertical", 24, 2, 25, 2))
sketch5.addConstraint(Sketcher.Constraint("Vertical", 25, 2, 27, 2))
sketch5.addConstraint(Sketcher.Constraint("Vertical", 27, 2, 28, 2))
sketch5.addConstraint(Sketcher.Constraint("Radius", 0, Q("1.5 mm")))
sketch5.addConstraint(Sketcher.Constraint("DistanceY", 1, 3, 3, 3, Q("6 mm")))
sketch5.addConstraint(Sketcher.Constraint("DistanceY", 9, 3, 0, 3, Q("62 mm")))
sketch5.addConstraint(Sketcher.Constraint("DistanceY", 12, 3, 6, 3, Q("17 mm")))
sketch5.addConstraint(Sketcher.Constraint("DistanceX", 14, 3, 15, 3, Q("122 mm")))
sketch5.addConstraint(Sketcher.Constraint("DistanceY", 10, 3, 6, 2, Q("10 mm")))
sketch5.addConstraint(Sketcher.Constraint("DistanceX", 0, 3, -1, 1, Q("55.905631 mm")))
sketch5.addConstraint(Sketcher.Constraint("DistanceY", -1, 1, 0, 3, Q("44.025316 mm")))
pocket2 = doc.addObject("PartDesign::Pocket", "Pocket001")
body.addObject(pocket2)
pocket2.Profile = sketch5
pocket2.Type = "ThroughAll"

# Sketch on XY plane
sketch6 = doc.addObject("Sketcher::SketchObject", "Sketch005")
body.addObject(sketch6)
sketch6.AttachmentSupport = (doc.XY_Plane, [""])
sketch6.MapMode = "FlatFace"
sketch6.addGeometry(Part.LineSegment(V(-59.905631, 57.025316, 0), V(-59.905631, -57.974684, 0)), False)
sketch6.addGeometry(Part.LineSegment(V(-59.905631, -57.974684, 0), V(-64.905631, -57.974684, 0)), False)
sketch6.addGeometry(Part.LineSegment(V(-64.905631, -57.974684, 0), V(-64.905631, 57.025316, 0)), False)
sketch6.addGeometry(Part.LineSegment(V(-64.905631, 57.025316, 0), V(-59.905631, 57.025316, 0)), False)
sketch6.addGeometry(Part.LineSegment(V(75.094369, 57.025316, 0), V(75.094369, -57.974684, 0)), False)
sketch6.addGeometry(Part.LineSegment(V(75.094369, -57.974684, 0), V(70.094369, -57.974684, 0)), False)
sketch6.addGeometry(Part.LineSegment(V(70.094369, -57.974684, 0), V(70.094369, 57.025316, 0)), False)
sketch6.addGeometry(Part.LineSegment(V(70.094369, 57.025316, 0), V(75.094369, 57.025316, 0)), False)
sketch6.addConstraint(Sketcher.Constraint("Coincident", 0, 2, 1, 1))
sketch6.addConstraint(Sketcher.Constraint("Coincident", 1, 2, 2, 1))
sketch6.addConstraint(Sketcher.Constraint("Coincident", 2, 2, 3, 1))
sketch6.addConstraint(Sketcher.Constraint("Coincident", 3, 2, 0, 1))
sketch6.addConstraint(Sketcher.Constraint("Coincident", 4, 2, 5, 1))
sketch6.addConstraint(Sketcher.Constraint("Coincident", 5, 2, 6, 1))
sketch6.addConstraint(Sketcher.Constraint("Coincident", 6, 2, 7, 1))
sketch6.addConstraint(Sketcher.Constraint("Coincident", 7, 2, 4, 1))
sketch6.addConstraint(Sketcher.Constraint("Vertical", 0))
sketch6.addConstraint(Sketcher.Constraint("Horizontal", 1))
sketch6.addConstraint(Sketcher.Constraint("Vertical", 2))
sketch6.addConstraint(Sketcher.Constraint("Horizontal", 3))
sketch6.addConstraint(Sketcher.Constraint("Vertical", 4))
sketch6.addConstraint(Sketcher.Constraint("Horizontal", 5))
sketch6.addConstraint(Sketcher.Constraint("Vertical", 6))
sketch6.addConstraint(Sketcher.Constraint("Horizontal", 7))
sketch6.addConstraint(Sketcher.Constraint("Horizontal", 1, 2, 4, 2))
sketch6.addConstraint(Sketcher.Constraint("Horizontal", 3, 2, 6, 2))
sketch6.addConstraint(Sketcher.Constraint("Equal", 3, 5))
sketch6.addConstraint(Sketcher.Constraint("DistanceX", 1, 2, 1, 1, Q("5 mm")))
sketch6.addConstraint(Sketcher.Constraint("DistanceY", 0, 2, 0, 1, Q("115 mm")))
sketch6.addConstraint(Sketcher.Constraint("DistanceX", 0, 2, 4, 2, Q("135 mm")))
sketch6.addConstraint(Sketcher.Constraint("DistanceX", 0, 2, -1, 1, Q("59.905631 mm")))
sketch6.addConstraint(Sketcher.Constraint("DistanceY", 0, 2, -1, 1, Q("57.974684 mm")))
pad4 = doc.addObject("PartDesign::Pad", "Pad003")
body.addObject(pad4)
pad4.Profile = sketch6
pad4.Length = 10
pad4.Reversed = True

doc.recompute()
